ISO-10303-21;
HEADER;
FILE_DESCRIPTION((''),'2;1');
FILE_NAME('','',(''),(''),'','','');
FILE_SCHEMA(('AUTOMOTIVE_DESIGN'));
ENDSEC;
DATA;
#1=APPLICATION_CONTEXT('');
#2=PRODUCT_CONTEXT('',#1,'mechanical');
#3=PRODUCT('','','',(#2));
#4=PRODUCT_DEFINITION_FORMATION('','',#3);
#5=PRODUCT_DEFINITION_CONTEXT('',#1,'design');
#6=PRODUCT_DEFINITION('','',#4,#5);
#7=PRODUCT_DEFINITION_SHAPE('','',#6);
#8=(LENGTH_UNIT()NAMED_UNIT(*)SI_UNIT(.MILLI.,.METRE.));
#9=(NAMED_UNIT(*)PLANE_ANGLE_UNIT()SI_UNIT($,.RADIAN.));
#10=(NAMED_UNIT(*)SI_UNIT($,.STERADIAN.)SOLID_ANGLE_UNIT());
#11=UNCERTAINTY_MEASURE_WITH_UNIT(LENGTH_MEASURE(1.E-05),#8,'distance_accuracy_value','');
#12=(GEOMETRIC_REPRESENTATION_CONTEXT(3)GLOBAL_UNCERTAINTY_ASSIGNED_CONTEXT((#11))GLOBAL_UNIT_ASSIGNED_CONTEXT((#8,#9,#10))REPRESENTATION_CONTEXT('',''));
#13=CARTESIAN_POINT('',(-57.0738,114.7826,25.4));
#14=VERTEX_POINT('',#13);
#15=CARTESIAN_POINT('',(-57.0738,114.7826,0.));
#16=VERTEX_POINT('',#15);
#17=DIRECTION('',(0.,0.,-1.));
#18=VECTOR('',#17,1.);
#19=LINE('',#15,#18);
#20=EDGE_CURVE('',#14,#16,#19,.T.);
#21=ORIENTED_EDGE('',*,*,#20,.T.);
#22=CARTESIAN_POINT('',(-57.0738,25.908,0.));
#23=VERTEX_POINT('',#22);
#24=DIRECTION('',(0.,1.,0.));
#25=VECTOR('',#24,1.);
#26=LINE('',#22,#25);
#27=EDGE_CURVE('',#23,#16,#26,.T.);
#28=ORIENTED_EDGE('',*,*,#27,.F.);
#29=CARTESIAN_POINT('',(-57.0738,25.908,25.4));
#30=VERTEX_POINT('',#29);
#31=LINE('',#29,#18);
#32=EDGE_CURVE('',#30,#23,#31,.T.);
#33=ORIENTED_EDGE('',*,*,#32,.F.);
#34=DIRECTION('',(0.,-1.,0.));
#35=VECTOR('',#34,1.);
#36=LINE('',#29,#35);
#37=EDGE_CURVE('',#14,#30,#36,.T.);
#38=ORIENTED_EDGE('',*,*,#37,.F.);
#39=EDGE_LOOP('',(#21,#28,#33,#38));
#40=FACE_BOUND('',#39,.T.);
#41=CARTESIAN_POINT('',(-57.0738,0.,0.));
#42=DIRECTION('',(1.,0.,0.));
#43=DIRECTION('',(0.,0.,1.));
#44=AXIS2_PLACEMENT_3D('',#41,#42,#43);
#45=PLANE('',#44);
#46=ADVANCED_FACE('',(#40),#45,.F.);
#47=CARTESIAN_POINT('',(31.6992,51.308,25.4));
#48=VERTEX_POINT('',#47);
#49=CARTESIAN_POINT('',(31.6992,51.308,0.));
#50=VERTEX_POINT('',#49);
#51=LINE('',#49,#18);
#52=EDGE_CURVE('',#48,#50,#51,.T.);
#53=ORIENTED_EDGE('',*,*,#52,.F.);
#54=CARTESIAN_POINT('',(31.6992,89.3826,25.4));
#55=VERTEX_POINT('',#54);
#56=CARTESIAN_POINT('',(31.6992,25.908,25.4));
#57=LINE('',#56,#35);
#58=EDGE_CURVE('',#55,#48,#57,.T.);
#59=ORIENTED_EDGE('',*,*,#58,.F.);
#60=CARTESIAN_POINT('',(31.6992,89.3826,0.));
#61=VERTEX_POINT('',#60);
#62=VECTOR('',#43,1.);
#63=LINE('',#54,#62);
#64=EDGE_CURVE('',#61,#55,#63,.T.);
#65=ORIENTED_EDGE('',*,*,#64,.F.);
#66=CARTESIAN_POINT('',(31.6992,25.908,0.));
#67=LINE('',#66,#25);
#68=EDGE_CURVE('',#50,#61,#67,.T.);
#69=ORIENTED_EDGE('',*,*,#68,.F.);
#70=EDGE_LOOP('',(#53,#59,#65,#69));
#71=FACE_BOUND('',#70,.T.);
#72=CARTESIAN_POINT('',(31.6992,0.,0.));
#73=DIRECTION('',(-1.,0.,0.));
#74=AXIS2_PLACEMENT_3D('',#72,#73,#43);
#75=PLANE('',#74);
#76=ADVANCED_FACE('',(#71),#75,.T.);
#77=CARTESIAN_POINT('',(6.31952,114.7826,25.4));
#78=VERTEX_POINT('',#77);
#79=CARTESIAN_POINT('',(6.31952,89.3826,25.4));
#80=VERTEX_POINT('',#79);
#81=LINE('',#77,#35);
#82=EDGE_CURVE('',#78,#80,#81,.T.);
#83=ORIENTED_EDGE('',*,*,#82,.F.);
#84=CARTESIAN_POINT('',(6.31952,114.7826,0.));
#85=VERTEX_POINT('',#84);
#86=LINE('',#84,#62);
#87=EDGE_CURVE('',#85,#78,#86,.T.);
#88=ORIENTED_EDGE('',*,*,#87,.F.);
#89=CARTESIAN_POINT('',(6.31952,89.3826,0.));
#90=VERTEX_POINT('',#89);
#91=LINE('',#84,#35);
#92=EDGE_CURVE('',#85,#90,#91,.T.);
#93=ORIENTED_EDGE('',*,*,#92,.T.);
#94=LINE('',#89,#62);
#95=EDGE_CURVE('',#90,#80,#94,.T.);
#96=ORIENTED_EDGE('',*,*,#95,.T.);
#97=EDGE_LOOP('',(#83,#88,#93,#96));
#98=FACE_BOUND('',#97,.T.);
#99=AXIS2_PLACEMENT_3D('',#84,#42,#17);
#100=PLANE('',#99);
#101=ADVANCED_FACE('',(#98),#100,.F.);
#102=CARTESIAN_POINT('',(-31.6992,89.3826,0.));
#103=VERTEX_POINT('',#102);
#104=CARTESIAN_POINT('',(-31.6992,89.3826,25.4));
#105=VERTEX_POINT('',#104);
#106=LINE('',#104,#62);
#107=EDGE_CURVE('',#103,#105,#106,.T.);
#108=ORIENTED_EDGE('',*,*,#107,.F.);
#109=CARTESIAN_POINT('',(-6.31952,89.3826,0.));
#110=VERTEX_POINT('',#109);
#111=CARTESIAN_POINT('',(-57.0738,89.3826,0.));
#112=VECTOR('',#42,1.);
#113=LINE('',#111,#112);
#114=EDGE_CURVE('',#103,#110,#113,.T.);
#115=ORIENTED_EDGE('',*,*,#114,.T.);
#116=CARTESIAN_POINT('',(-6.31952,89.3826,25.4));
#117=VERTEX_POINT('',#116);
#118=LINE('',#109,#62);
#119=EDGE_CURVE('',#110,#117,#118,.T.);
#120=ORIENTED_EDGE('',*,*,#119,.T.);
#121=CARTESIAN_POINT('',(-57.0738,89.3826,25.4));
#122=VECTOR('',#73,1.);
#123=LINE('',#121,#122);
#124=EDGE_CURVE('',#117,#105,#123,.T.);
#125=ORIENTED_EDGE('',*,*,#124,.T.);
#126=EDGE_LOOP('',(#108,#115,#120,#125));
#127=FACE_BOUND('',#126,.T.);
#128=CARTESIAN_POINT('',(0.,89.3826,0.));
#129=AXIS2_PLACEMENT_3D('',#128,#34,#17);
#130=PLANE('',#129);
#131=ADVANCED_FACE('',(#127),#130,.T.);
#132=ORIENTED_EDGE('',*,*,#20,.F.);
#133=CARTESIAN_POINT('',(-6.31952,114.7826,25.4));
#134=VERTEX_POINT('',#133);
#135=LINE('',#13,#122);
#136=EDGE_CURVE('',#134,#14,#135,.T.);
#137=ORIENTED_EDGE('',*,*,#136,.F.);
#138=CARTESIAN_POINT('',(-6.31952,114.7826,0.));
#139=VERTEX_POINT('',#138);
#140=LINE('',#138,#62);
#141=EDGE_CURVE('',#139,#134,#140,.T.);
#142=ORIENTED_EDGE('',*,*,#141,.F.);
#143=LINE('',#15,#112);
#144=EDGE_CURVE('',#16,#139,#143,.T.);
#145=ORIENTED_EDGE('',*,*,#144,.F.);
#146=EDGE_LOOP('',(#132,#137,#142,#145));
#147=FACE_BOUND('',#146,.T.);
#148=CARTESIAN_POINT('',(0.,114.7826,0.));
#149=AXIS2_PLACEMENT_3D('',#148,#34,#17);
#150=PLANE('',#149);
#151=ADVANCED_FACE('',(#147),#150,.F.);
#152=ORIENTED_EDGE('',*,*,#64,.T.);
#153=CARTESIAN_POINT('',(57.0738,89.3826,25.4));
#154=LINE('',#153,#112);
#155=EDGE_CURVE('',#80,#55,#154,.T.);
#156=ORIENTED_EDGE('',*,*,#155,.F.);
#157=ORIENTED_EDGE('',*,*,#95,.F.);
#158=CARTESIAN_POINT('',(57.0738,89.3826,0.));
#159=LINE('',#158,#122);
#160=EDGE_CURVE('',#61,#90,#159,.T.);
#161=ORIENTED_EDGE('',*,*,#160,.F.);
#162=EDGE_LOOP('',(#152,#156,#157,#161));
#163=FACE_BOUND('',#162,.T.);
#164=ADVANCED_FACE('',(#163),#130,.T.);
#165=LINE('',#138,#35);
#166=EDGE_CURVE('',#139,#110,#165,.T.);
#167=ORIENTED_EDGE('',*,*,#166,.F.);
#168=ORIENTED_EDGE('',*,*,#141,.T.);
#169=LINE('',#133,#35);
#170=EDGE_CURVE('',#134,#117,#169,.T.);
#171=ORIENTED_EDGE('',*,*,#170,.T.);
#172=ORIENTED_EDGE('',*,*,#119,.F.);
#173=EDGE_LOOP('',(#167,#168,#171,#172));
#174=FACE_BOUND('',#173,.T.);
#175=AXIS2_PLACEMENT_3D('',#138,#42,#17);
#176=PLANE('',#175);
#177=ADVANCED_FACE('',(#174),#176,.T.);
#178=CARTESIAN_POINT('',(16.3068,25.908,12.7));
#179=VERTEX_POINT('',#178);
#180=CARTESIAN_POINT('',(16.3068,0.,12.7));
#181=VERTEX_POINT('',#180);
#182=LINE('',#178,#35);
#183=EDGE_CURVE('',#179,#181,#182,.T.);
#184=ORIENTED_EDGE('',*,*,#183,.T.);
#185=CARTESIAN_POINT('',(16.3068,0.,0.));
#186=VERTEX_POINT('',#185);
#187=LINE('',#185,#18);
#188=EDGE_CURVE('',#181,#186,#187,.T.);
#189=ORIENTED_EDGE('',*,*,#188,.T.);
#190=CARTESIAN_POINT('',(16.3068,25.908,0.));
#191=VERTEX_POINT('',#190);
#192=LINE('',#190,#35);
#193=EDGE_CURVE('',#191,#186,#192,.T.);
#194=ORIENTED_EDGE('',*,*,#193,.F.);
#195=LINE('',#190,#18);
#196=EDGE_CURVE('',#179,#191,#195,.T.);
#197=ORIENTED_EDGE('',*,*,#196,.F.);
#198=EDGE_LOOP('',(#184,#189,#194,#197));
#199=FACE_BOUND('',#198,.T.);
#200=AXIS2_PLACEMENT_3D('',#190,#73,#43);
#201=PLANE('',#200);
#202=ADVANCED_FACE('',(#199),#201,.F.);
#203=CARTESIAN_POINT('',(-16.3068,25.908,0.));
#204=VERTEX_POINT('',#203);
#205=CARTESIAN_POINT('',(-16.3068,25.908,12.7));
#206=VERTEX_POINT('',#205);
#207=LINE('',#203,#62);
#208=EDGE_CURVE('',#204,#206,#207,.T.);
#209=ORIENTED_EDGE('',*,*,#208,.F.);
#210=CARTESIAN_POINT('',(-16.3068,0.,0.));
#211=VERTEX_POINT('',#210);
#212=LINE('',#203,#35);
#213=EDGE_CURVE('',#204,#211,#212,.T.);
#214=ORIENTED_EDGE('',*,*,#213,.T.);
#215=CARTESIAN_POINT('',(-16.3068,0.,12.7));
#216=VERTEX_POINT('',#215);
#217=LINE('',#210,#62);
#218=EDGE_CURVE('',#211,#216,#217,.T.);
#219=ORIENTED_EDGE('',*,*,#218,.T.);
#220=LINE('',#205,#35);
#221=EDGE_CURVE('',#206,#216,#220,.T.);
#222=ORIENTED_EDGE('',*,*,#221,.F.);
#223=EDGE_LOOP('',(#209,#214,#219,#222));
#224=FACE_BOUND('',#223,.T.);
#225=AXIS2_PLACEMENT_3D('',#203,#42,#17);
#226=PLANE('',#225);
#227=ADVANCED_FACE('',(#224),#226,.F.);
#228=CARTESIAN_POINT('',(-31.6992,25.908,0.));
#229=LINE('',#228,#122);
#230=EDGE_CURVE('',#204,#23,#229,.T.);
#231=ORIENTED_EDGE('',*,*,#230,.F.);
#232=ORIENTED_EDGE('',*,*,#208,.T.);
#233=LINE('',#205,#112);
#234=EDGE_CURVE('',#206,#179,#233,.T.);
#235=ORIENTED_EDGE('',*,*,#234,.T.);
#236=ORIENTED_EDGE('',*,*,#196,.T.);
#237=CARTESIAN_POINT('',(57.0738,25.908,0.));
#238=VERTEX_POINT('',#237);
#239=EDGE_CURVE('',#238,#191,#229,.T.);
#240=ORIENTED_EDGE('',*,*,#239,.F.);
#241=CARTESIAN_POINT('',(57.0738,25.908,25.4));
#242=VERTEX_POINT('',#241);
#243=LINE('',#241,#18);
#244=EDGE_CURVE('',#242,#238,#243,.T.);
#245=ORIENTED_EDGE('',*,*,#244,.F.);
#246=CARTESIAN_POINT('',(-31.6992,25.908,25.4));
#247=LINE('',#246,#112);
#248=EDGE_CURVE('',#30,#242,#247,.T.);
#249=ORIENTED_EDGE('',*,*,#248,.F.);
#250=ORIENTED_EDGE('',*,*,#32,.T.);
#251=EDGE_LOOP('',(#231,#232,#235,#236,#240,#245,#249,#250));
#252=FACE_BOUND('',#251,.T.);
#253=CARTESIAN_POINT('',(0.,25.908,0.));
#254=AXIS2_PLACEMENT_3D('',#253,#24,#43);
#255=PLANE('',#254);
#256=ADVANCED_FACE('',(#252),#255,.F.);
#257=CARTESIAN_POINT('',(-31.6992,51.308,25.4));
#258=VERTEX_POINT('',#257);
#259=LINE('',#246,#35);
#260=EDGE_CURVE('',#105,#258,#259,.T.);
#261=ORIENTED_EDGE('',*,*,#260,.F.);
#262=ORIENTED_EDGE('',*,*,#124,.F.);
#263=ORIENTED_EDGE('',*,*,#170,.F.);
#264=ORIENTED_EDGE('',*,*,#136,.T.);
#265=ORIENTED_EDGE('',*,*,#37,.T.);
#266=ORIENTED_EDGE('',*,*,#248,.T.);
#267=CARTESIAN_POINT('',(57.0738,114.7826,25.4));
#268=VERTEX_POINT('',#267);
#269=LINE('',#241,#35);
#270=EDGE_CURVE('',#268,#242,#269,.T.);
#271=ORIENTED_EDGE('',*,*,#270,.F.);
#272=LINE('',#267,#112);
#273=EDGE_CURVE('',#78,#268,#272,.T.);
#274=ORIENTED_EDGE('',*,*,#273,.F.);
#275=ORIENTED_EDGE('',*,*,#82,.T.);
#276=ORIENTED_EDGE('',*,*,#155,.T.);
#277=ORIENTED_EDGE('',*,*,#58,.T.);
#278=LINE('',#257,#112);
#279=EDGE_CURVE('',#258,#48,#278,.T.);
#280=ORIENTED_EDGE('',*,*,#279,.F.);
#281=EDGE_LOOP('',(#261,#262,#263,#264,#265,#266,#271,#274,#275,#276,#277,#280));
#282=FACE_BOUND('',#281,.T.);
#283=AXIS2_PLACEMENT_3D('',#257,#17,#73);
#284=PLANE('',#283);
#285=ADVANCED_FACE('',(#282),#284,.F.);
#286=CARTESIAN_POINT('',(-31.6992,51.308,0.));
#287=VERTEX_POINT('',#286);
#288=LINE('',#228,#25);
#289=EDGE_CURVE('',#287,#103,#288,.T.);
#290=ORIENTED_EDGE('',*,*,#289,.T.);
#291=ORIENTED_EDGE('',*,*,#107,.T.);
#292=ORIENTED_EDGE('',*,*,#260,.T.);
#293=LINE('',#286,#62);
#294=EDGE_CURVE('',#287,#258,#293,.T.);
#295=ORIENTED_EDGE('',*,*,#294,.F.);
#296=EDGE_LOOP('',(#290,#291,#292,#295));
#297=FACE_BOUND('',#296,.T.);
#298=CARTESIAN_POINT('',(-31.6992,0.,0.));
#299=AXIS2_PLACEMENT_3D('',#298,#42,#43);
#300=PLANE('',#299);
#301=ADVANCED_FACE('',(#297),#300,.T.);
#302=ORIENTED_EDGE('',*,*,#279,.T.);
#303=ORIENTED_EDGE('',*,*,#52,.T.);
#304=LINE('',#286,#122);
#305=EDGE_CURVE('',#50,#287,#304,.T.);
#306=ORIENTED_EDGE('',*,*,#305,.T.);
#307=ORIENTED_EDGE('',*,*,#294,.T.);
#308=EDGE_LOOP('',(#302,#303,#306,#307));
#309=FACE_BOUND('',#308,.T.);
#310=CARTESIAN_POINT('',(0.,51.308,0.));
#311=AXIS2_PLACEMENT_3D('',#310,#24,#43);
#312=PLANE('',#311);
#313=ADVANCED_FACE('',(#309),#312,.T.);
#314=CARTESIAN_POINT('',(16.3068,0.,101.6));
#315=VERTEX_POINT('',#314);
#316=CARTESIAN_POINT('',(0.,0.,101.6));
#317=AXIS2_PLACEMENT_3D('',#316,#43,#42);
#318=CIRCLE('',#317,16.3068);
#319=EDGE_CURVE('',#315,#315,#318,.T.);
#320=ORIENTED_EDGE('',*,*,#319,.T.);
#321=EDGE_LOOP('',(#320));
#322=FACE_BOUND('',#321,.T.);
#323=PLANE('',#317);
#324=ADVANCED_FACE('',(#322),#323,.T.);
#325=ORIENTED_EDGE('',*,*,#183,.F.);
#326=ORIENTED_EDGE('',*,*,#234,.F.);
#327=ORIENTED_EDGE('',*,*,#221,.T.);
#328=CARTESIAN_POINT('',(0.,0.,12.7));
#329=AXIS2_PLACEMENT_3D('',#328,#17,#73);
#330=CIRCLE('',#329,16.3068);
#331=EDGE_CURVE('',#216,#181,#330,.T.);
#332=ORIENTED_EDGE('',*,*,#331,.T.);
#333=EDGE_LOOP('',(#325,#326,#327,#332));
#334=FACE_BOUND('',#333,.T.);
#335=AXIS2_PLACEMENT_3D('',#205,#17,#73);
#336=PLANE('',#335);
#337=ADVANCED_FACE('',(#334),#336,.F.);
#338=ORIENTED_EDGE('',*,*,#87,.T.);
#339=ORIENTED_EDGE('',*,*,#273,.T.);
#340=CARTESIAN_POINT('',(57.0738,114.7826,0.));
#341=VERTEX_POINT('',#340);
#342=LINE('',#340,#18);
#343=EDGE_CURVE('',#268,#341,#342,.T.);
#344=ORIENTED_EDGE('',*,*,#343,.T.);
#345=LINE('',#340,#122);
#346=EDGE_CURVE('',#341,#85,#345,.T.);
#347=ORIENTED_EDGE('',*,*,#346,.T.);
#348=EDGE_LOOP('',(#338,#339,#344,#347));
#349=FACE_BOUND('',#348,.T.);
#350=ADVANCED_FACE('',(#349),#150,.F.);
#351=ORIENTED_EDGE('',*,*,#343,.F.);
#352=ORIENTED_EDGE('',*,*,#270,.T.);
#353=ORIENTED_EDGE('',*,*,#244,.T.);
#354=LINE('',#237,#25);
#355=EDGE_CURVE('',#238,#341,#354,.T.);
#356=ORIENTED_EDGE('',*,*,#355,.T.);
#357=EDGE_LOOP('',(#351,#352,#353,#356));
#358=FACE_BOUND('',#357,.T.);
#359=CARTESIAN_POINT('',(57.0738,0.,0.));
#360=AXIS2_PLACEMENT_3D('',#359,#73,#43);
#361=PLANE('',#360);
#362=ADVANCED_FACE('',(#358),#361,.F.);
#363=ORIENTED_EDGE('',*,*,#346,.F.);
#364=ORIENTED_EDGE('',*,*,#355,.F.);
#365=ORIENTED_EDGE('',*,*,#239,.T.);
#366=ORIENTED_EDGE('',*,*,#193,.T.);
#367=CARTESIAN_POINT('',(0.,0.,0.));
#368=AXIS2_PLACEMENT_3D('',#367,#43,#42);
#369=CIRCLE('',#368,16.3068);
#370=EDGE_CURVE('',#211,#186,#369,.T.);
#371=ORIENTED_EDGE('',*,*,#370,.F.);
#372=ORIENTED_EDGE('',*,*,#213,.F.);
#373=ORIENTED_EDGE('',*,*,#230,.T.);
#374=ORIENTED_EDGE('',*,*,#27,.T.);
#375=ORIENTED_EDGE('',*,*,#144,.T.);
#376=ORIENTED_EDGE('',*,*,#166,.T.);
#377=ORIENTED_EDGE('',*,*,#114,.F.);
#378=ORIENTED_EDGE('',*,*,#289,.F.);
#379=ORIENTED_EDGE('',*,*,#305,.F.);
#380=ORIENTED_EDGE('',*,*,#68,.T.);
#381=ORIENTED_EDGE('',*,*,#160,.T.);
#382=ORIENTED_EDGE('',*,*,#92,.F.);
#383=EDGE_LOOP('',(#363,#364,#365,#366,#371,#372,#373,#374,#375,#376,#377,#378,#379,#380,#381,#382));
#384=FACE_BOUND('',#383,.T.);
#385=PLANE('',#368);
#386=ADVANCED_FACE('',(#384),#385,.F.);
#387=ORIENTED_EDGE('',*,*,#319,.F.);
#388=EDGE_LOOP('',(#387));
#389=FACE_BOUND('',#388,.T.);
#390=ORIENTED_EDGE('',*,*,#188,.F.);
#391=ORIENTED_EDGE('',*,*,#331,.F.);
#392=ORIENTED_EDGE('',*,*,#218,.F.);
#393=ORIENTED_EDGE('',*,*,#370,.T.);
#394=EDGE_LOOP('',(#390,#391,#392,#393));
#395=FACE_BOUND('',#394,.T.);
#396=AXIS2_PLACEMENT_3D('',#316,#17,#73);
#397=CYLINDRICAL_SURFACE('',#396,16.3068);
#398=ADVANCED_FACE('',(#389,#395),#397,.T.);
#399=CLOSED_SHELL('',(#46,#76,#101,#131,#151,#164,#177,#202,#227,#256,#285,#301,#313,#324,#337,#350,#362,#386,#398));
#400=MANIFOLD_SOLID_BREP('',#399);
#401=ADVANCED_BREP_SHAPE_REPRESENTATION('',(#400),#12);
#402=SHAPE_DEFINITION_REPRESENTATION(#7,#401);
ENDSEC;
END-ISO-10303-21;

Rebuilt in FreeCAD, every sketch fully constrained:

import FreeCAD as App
import Part
import Sketcher

V = App.Vector
Q = App.Units.Quantity

doc = App.newDocument("Part")
body = doc.addObject("PartDesign::Body", "Body")

# Sketch on XY plane
sketch1 = body.newObject("Sketcher::SketchObject", "Sketch")
sketch1.AttachmentSupport = (doc.getObject("XY_Plane"), [""])
sketch1.MapMode = "FlatFace"
sketch1.addGeometry(Part.Circle(V(0, 0, 0), V(0, 0, 1), 16), False)
sketch1.addConstraint(Sketcher.Constraint("Coincident", 0, 3, -1, 1))
sketch1.addConstraint(Sketcher.Constraint("Diameter", 0, Q("1.284 in")))
pad1 = body.newObject("PartDesign::Pad", "Pad")
pad1.Profile = sketch1
pad1.Length = Q("4 in")

# Sketch on XZ plane
sketch2 = body.newObject("Sketcher::SketchObject", "Sketch001")
sketch2.AttachmentSupport = (doc.getObject("XZ_Plane"), [""])
sketch2.MapMode = "FlatFace"
sketch2.addGeometry(Part.LineSegment(V(-16, 0, 0), V(-16, 13, 0)), False)
sketch2.addGeometry(Part.LineSegment(V(-16, 13, 0), V(16, 13, 0)), False)
sketch2.addGeometry(Part.LineSegment(V(16, 13, 0), V(16, 0, 0)), False)
sketch2.addGeometry(Part.LineSegment(V(16, 0, 0), V(-16, 0, 0)), False)
sketch2.addConstraint(Sketcher.Constraint("Coincident", 0, 2, 1, 1))
sketch2.addConstraint(Sketcher.Constraint("Coincident", 1, 2, 2, 1))
sketch2.addConstraint(Sketcher.Constraint("Coincident", 2, 2, 3, 1))
sketch2.addConstraint(Sketcher.Constraint("Coincident", 3, 2, 0, 1))
sketch2.addConstraint(Sketcher.Constraint("Vertical", 0))
sketch2.addConstraint(Sketcher.Constraint("Horizontal", 1))
sketch2.addConstraint(Sketcher.Constraint("Vertical", 2))
sketch2.addConstraint(Sketcher.Constraint("Horizontal", 3))
sketch2.addConstraint(Sketcher.Constraint("Symmetric", 2, 2, 3, 2, -1, 1))
sketch2.addConstraint(Sketcher.Constraint("DistanceY", 0, 1, 0, 2, Q("0.5 in")))
sketch2.addConstraint(Sketcher.Constraint("DistanceX", 1, 1, 1, 2, Q("1.284 in")))
pad2 = body.newObject("PartDesign::Pad", "Pad001")
pad2.Profile = sketch2
pad2.Length = Q("1.02 in")
pad2.Reversed = True

# Sketch on XZ plane
sketch3 = body.newObject("Sketcher::SketchObject", "Sketch002")
sketch3.AttachmentSupport = (doc.getObject("XZ_Plane"), [""])
sketch3.MapMode = "FlatFace"
sketch3.AttachmentOffset = App.Placement(V(0, 0, -1.02 * 25.4), App.Rotation())
sketch3.addGeometry(Part.LineSegment(V(-32, 0, 0), V(-32, 25, 0)), False)
sketch3.addGeometry(Part.LineSegment(V(-32, 25, 0), V(32, 25, 0)), False)
sketch3.addGeometry(Part.LineSegment(V(32, 25, 0), V(32, 0, 0)), False)
sketch3.addGeometry(Part.LineSegment(V(32, 0, 0), V(-32, 0, 0)), False)
sketch3.addConstraint(Sketcher.Constraint("Coincident", 0, 2, 1, 1))
sketch3.addConstraint(Sketcher.Constraint("Coincident", 1, 2, 2, 1))
sketch3.addConstraint(Sketcher.Constraint("Coincident", 2, 2, 3, 1))
sketch3.addConstraint(Sketcher.Constraint("Coincident", 3, 2, 0, 1))
sketch3.addConstraint(Sketcher.Constraint("Vertical", 0))
sketch3.addConstraint(Sketcher.Constraint("Horizontal", 1))
sketch3.addConstraint(Sketcher.Constraint("Vertical", 2))
sketch3.addConstraint(Sketcher.Constraint("Horizontal", 3))
sketch3.addConstraint(Sketcher.Constraint("Symmetric", 2, 2, 3, 2, -1, 1))
sketch3.addConstraint(Sketcher.Constraint("DistanceY", 0, 1, 0, 2, Q("1 in")))
sketch3.addConstraint(Sketcher.Constraint("DistanceX", 1, 1, 1, 2, Q("2.496 in")))
pad3 = body.newObject("PartDesign::Pad", "Pad002")
pad3.Profile = sketch3
pad3.Length = Q("1 in")
pad3.Reversed = True

# Sketch on YZ plane
sketch4 = body.newObject("Sketcher::SketchObject", "Sketch003")
sketch4.AttachmentSupport = (doc.getObject("YZ_Plane"), [""])
sketch4.MapMode = "FlatFace"
sketch4.AttachmentOffset = App.Placement(V(0, 0, 1.248 * 25.4), App.Rotation())
sketch4.addGeometry(Part.LineSegment(V(89, 25, 0), V(26, 25, 0)), False)
sketch4.addGeometry(Part.LineSegment(V(26, 25, 0), V(26, 0, 0)), False)
sketch4.addGeometry(Part.LineSegment(V(26, 0, 0), V(89, 0, 0)), False)
sketch4.addGeometry(Part.LineSegment(V(89, 0, 0), V(89, 25, 0)), False)
sketch4.addConstraint(Sketcher.Constraint("Coincident", 0, 2, 1, 1))
sketch4.addConstraint(Sketcher.Constraint("Coincident", 1, 2, 2, 1))
sketch4.addConstraint(Sketcher.Constraint("Coincident", 2, 2, 3, 1))
sketch4.addConstraint(Sketcher.Constraint("Coincident", 3, 2, 0, 1))
sketch4.addConstraint(Sketcher.Constraint("Horizontal", 0))
sketch4.addConstraint(Sketcher.Constraint("Vertical", 1))
sketch4.addConstraint(Sketcher.Constraint("Horizontal", 2))
sketch4.addConstraint(Sketcher.Constraint("Vertical", 3))
sketch4.addConstraint(Sketcher.Constraint("PointOnObject", 1, 2, -1))
sketch4.addConstraint(Sketcher.Constraint("DistanceY", 1, 2, 1, 1, Q("1 in")))
sketch4.addConstraint(Sketcher.Constraint("DistanceX", 0, 2, 0, 1, Q("2.499 in")))
sketch4.addConstraint(Sketcher.Constraint("DistanceX", -1, 1, 0, 2, Q("1.02 in")))
pad4 = body.newObject("PartDesign::Pad", "Pad003")
pad4.Profile = sketch4
pad4.Length = Q("0.999 in")

# Sketch on XZ plane
sketch5 = body.newObject("Sketcher::SketchObject", "Sketch004")
sketch5.AttachmentSupport = (doc.getObject("XZ_Plane"), [""])
sketch5.MapMode = "FlatFace"
sketch5.AttachmentOffset = App.Placement(V(0, 0, -3.519 * 25.4), App.Rotation())
sketch5.addGeometry(Part.LineSegment(V(6, 0, 0), V(6, 25, 0)), False)
sketch5.addGeometry(Part.LineSegment(V(6, 25, 0), V(57, 25, 0)), False)
sketch5.addGeometry(Part.LineSegment(V(57, 25, 0), V(57, 0, 0)), False)
sketch5.addGeometry(Part.LineSegment(V(57, 0, 0), V(6, 0, 0)), False)
sketch5.addConstraint(Sketcher.Constraint("Coincident", 0, 2, 1, 1))
sketch5.addConstraint(Sketcher.Constraint("Coincident", 1, 2, 2, 1))
sketch5.addConstraint(Sketcher.Constraint("Coincident", 2, 2, 3, 1))
sketch5.addConstraint(Sketcher.Constraint("Coincident", 3, 2, 0, 1))
sketch5.addConstraint(Sketcher.Constraint("Vertical", 0))
sketch5.addConstraint(Sketcher.Constraint("Horizontal", 1))
sketch5.addConstraint(Sketcher.Constraint("Vertical", 2))
sketch5.addConstraint(Sketcher.Constraint("Horizontal", 3))
sketch5.addConstraint(Sketcher.Constraint("PointOnObject", 2, 2, -1))
sketch5.addConstraint(Sketcher.Constraint("DistanceY", 0, 1, 0, 2, Q("1 in")))
sketch5.addConstraint(Sketcher.Constraint("DistanceX", 1, 1, 1, 2, Q("1.9982 in")))
sketch5.addConstraint(Sketcher.Constraint("DistanceX", -1, 1, 1, 2, Q("2.247 in")))
pad5 = body.newObject("PartDesign::Pad", "Pad004")
pad5.Profile = sketch5
pad5.Length = Q("1 in")
pad5.Reversed = True
doc.recompute()

mirrored = body.newObject("PartDesign::Mirrored", "Mirrored")
mirrored.Originals = [pad3, pad4, pad5]
mirrored.MirrorPlane = (doc.getObject("YZ_Plane"), [""])
body.Tip = mirrored

doc.recompute()
